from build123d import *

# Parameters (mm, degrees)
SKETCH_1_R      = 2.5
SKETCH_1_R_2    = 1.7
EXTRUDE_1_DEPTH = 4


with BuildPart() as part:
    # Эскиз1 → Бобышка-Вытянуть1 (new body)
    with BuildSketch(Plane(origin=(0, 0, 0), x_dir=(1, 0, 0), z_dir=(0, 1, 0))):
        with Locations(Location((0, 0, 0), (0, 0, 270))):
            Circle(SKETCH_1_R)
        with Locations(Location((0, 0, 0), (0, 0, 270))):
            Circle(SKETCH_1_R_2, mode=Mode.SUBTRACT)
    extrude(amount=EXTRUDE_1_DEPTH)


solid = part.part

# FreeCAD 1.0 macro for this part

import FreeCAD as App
import Part
import Sketcher
Q = App.Units.Quantity

doc = App.newDocument("Part")
params = doc.addObject("Spreadsheet::Sheet", "Params")
for row, (alias, value) in enumerate([
    ("sketch1_diameter", "5 mm"),
    ("sketch1_diameter2", "3.4 mm"),
    ("pad1_length", "4 mm"),
], start=1):
    params.set(f"A{row}", alias)
    params.set(f"B{row}", "=" + value)
    params.setAlias(f"B{row}", alias)

body = doc.addObject("PartDesign::Body", "Body")

# Sketch on XZ plane
sketch1 = body.newObject("Sketcher::SketchObject", "Sketch")
sketch1.AttachmentSupport = (doc.getObject("XZ_Plane"), [""])
sketch1.MapMode = "FlatFace"
sketch1.addGeometry(Part.Circle(App.Vector(0, 0, 0), App.Vector(0, 0, 1), 2.5), False)
sketch1.addGeometry(Part.Circle(App.Vector(0, 0, 0), App.Vector(0, 0, 1), 1.7), False)
sketch1.addConstraint(Sketcher.Constraint("Coincident", 0, 3, -1, 1))
sketch1.addConstraint(Sketcher.Constraint("Coincident", 1, 3, -1, 1))
sketch1.addConstraint(Sketcher.Constraint("Diameter", 0, Q("5 mm")))
sketch1.addConstraint(Sketcher.Constraint("Diameter", 1, Q("3.4 mm")))
sketch1.setExpression("Constraints[2]", "Params.sketch1_diameter")
sketch1.setExpression("Constraints[3]", "Params.sketch1_diameter2")
pad1 = body.newObject("PartDesign::Pad", "Pad")
pad1.Profile = sketch1
pad1.setExpression("Length", "Params.pad1_length")
pad1.Reversed = True

doc.recompute()
